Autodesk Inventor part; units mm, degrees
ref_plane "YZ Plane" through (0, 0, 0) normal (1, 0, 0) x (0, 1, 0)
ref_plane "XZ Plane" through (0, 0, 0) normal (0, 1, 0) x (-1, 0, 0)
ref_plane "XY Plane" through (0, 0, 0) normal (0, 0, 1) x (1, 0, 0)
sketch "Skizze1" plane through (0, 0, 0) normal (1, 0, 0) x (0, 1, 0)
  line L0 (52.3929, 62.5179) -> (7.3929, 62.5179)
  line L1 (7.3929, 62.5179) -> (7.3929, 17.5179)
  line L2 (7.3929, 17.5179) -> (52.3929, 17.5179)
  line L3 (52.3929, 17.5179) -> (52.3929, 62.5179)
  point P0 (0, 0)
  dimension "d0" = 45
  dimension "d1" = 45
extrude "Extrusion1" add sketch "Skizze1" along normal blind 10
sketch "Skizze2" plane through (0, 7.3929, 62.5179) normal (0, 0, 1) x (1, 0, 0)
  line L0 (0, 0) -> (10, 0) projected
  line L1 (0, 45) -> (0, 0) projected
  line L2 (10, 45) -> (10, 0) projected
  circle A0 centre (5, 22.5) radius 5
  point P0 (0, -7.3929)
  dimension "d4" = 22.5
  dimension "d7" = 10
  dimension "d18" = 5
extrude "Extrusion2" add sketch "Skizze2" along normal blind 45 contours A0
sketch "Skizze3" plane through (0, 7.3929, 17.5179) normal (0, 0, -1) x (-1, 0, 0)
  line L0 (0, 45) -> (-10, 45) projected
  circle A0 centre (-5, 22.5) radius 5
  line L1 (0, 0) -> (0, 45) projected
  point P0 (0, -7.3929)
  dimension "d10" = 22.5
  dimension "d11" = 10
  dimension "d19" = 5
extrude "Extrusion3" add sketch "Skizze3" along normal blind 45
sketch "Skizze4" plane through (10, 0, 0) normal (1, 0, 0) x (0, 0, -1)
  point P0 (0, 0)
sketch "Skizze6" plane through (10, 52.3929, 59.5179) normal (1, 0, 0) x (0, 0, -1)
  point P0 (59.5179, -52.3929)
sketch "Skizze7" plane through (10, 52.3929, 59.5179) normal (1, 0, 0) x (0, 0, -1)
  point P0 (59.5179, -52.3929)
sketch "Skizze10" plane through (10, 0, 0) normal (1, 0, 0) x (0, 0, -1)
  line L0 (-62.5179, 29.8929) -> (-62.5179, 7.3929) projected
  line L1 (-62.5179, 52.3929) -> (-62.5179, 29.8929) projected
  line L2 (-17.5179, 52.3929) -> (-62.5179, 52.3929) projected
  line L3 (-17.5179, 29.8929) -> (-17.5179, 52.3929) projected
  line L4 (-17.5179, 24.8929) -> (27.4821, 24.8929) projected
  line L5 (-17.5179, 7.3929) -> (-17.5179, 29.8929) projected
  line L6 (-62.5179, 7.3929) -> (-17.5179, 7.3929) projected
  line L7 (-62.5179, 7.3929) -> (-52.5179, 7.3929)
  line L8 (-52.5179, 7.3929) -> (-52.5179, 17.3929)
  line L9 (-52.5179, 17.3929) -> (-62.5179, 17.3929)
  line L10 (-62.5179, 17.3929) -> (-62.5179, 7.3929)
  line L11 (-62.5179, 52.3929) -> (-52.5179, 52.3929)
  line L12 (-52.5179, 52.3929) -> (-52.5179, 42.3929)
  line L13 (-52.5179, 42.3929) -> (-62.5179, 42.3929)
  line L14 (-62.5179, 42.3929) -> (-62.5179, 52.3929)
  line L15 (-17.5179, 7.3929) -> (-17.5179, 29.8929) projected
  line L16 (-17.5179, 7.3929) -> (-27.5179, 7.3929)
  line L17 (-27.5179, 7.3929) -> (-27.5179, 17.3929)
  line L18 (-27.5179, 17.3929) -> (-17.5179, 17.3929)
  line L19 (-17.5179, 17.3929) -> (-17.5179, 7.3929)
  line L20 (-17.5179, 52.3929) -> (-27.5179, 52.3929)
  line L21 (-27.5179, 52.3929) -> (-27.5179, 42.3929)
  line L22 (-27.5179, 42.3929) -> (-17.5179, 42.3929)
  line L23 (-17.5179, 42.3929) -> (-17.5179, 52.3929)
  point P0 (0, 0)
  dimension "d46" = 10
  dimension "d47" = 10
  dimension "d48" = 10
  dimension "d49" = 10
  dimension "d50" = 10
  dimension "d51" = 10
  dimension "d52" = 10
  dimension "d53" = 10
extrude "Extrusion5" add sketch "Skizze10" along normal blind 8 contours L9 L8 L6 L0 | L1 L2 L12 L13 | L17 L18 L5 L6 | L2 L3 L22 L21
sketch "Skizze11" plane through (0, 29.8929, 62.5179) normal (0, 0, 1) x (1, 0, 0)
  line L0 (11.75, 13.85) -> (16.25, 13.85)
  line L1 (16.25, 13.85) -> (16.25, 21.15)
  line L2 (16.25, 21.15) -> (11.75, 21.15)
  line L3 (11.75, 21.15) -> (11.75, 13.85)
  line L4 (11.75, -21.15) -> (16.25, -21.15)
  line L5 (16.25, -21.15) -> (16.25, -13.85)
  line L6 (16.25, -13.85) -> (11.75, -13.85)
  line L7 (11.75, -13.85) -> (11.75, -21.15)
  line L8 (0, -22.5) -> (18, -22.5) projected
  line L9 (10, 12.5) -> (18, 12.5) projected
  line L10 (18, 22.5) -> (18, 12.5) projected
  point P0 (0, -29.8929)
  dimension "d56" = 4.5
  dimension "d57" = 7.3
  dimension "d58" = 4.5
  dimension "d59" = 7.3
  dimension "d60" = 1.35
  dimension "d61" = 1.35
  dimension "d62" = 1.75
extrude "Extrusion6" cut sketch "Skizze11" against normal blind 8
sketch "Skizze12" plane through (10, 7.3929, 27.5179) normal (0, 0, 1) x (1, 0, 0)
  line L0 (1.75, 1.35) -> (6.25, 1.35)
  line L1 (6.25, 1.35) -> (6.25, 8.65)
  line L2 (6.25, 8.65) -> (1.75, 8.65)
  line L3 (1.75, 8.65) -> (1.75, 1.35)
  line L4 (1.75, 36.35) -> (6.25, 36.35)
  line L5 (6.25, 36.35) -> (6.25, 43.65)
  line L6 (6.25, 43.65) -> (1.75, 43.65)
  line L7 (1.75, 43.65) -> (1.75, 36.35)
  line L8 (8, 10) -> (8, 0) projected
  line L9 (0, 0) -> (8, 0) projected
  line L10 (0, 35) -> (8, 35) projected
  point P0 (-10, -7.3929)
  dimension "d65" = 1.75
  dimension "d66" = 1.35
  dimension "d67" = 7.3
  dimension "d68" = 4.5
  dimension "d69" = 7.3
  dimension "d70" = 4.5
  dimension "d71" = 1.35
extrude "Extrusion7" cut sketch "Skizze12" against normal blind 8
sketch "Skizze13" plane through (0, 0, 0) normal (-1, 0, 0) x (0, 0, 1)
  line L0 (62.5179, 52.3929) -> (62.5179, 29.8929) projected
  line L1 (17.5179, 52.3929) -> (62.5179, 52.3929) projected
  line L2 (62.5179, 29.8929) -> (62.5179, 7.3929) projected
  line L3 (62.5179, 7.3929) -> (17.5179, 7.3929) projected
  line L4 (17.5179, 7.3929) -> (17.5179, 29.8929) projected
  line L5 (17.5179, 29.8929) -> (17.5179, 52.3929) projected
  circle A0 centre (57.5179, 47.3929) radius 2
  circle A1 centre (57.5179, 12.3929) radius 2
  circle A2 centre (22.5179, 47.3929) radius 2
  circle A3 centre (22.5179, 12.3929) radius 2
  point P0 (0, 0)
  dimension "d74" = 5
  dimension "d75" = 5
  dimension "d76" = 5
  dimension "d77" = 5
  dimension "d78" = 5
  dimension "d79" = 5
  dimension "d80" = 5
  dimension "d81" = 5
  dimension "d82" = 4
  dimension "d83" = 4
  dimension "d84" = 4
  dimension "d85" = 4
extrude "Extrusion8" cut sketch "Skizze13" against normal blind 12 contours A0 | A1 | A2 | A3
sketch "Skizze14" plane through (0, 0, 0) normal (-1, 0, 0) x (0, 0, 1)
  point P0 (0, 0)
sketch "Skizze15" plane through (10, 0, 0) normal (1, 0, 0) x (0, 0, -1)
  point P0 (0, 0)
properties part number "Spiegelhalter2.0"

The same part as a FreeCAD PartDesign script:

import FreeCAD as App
import Part
import Sketcher

V = App.Vector
Q = App.Units.Quantity

doc = App.newDocument("Part")
params = doc.addObject("Spreadsheet::Sheet", "Params")
for row, (alias, value) in enumerate([
    ("sketch1_width", "45 mm"),
    ("pad1_length", "10 mm"),
    ("sketch2_diameter", "10 mm"),
    ("pad2_length", "45 mm"),
    ("sketch3_diameter", "10 mm"),
    ("pad3_length", "45 mm"),
    ("sketch4_width", "10 mm"),
    ("pad4_length", "8 mm"),
    ("sketch5_width", "4.5 mm"),
    ("sketch5_height", "7.3 mm"),
    ("pocket1_length", "8 mm"),
    ("sketch6_width", "4.5 mm"),
    ("sketch6_height", "7.3 mm"),
    ("pocket2_length", "8 mm"),
    ("sketch7_diameter", "4 mm"),
    ("pocket3_length", "12 mm"),
], start=1):
    params.set(f"A{row}", alias)
    params.set(f"B{row}", "=" + value)
    params.setAlias(f"B{row}", alias)

body = doc.addObject("PartDesign::Body", "Body")

sketch1 = doc.addObject("Sketcher::SketchObject", "Sketch")
body.addObject(sketch1)
sketch1.AttachmentSupport = (doc.YZ_Plane, [""])
sketch1.MapMode = "FlatFace"
sketch1.addGeometry(Part.LineSegment(V(52.3929, 17.5179, 0), V(52.3929, 62.5179, 0)), False)
sketch1.addGeometry(Part.LineSegment(V(52.3929, 62.5179, 0), V(7.3929, 62.5179, 0)), False)
sketch1.addGeometry(Part.LineSegment(V(7.3929, 62.5179, 0), V(7.3929, 17.5179, 0)), False)
sketch1.addGeometry(Part.LineSegment(V(7.3929, 17.5179, 0), V(52.3929, 17.5179, 0)), False)
sketch1.addConstraint(Sketcher.Constraint("Coincident", 0, 2, 1, 1))
sketch1.addConstraint(Sketcher.Constraint("Coincident", 1, 2, 2, 1))
sketch1.addConstraint(Sketcher.Constraint("Coincident", 2, 2, 3, 1))
sketch1.addConstraint(Sketcher.Constraint("Coincident", 3, 2, 0, 1))
sketch1.addConstraint(Sketcher.Constraint("Vertical", 0))
sketch1.addConstraint(Sketcher.Constraint("Horizontal", 1))
sketch1.addConstraint(Sketcher.Constraint("Vertical", 2))
sketch1.addConstraint(Sketcher.Constraint("Horizontal", 3))
sketch1.addConstraint(Sketcher.Constraint("Equal", 3, 0))
sketch1.addConstraint(Sketcher.Constraint("DistanceX", 1, 2, 1, 1, Q("45 mm")))
sketch1.addConstraint(Sketcher.Constraint("DistanceX", -1, 1, 0, 2, Q("52.393 mm")))
sketch1.addConstraint(Sketcher.Constraint("DistanceY", -1, 1, 0, 2, Q("62.518 mm")))
sketch1.setExpression("Constraints[9]", "Params.sketch1_width")
pad1 = doc.addObject("PartDesign::Pad", "Pad")
body.addObject(pad1)
pad1.Profile = sketch1
pad1.setExpression("Length", "Params.pad1_length")

sketch2 = doc.addObject("Sketcher::SketchObject", "Sketch001")
body.addObject(sketch2)
sketch2.AttachmentSupport = (doc.XY_Plane, [""])
sketch2.MapMode = "FlatFace"
sketch2.AttachmentOffset = App.Placement(V(0, 0, 62.5179), App.Rotation())
sketch2.addGeometry(Part.Circle(V(5, 29.8929, 0), V(0, 0, 1), 5), False)
sketch2.addConstraint(Sketcher.Constraint("Diameter", 0, Q("10 mm")))
sketch2.addConstraint(Sketcher.Constraint("DistanceX", -1, 1, 0, 3, Q("5 mm")))
sketch2.addConstraint(Sketcher.Constraint("DistanceY", -1, 1, 0, 3, Q("29.893 mm")))
sketch2.setExpression("Constraints[0]", "Params.sketch2_diameter")
pad2 = doc.addObject("PartDesign::Pad", "Pad001")
body.addObject(pad2)
pad2.Profile = sketch2
pad2.setExpression("Length", "Params.pad2_length")

sketch3 = doc.addObject("Sketcher::SketchObject", "Sketch002")
body.addObject(sketch3)
sketch3.AttachmentSupport = (doc.XY_Plane, [""])
sketch3.MapMode = "FlatFace"
sketch3.AttachmentOffset = App.Placement(V(0, 0, 17.5179), App.Rotation())
sketch3.addGeometry(Part.Circle(V(5, 29.8929, 0), V(0, 0, 1), 5), False)
sketch3.addConstraint(Sketcher.Constraint("Diameter", 0, Q("10 mm")))
sketch3.addConstraint(Sketcher.Constraint("DistanceX", -1, 1, 0, 3, Q("5 mm")))
sketch3.addConstraint(Sketcher.Constraint("DistanceY", -1, 1, 0, 3, Q("29.893 mm")))
sketch3.setExpression("Constraints[0]", "Params.sketch3_diameter")
pad3 = doc.addObject("PartDesign::Pad", "Pad002")
body.addObject(pad3)
pad3.Profile = sketch3
pad3.setExpression("Length", "Params.pad3_length")
pad3.Reversed = True

sketch4 = doc.addObject("Sketcher::SketchObject", "Sketch003")
body.addObject(sketch4)
sketch4.AttachmentSupport = (doc.YZ_Plane, [""])
sketch4.MapMode = "FlatFace"
sketch4.AttachmentOffset = App.Placement(V(0, 0, 10), App.Rotation())
sketch4.addGeometry(Part.LineSegment(V(17.3929, 52.5179, 0), V(17.3929, 62.5179, 0)), False)
sketch4.addGeometry(Part.LineSegment(V(17.3929, 62.5179, 0), V(7.3929, 62.5179, 0)), False)
sketch4.addGeometry(Part.LineSegment(V(7.3929, 62.5179, 0), V(7.3929, 52.5179, 0)), False)
sketch4.addGeometry(Part.LineSegment(V(7.3929, 52.5179, 0), V(17.3929, 52.5179, 0)), False)
sketch4.addGeometry(Part.LineSegment(V(52.3929, 62.5179, 0), V(42.3929, 62.5179, 0)), False)
sketch4.addGeometry(Part.LineSegment(V(42.3929, 62.5179, 0), V(42.3929, 52.5179, 0)), False)
sketch4.addGeometry(Part.LineSegment(V(42.3929, 52.5179, 0), V(52.3929, 52.5179, 0)), False)
sketch4.addGeometry(Part.LineSegment(V(52.3929, 52.5179, 0), V(52.3929, 62.5179, 0)), False)
sketch4.addGeometry(Part.LineSegment(V(17.3929, 27.5179, 0), V(7.3929, 27.5179, 0)), False)
sketch4.addGeometry(Part.LineSegment(V(7.3929, 27.5179, 0), V(7.3929, 17.5179, 0)), False)
sketch4.addGeometry(Part.LineSegment(V(7.3929, 17.5179, 0), V(17.3929, 17.5179, 0)), False)
sketch4.addGeometry(Part.LineSegment(V(17.3929, 17.5179, 0), V(17.3929, 27.5179, 0)), False)
sketch4.addGeometry(Part.LineSegment(V(52.3929, 17.5179, 0), V(52.3929, 27.5179, 0)), False)
sketch4.addGeometry(Part.LineSegment(V(52.3929, 27.5179, 0), V(42.3929, 27.5179, 0)), False)
sketch4.addGeometry(Part.LineSegment(V(42.3929, 27.5179, 0), V(42.3929, 17.5179, 0)), False)
sketch4.addGeometry(Part.LineSegment(V(42.3929, 17.5179, 0), V(52.3929, 17.5179, 0)), False)
sketch4.addConstraint(Sketcher.Constraint("Coincident", 0, 2, 1, 1))
sketch4.addConstraint(Sketcher.Constraint("Coincident", 1, 2, 2, 1))
sketch4.addConstraint(Sketcher.Constraint("Coincident", 2, 2, 3, 1))
sketch4.addConstraint(Sketcher.Constraint("Coincident", 3, 2, 0, 1))
sketch4.addConstraint(Sketcher.Constraint("Coincident", 4, 2, 5, 1))
sketch4.addConstraint(Sketcher.Constraint("Coincident", 5, 2, 6, 1))
sketch4.addConstraint(Sketcher.Constraint("Coincident", 6, 2, 7, 1))
sketch4.addConstraint(Sketcher.Constraint("Coincident", 7, 2, 4, 1))
sketch4.addConstraint(Sketcher.Constraint("Coincident", 8, 2, 9, 1))
sketch4.addConstraint(Sketcher.Constraint("Coincident", 9, 2, 10, 1))
sketch4.addConstraint(Sketcher.Constraint("Coincident", 10, 2, 11, 1))
sketch4.addConstraint(Sketcher.Constraint("Coincident", 11, 2, 8, 1))
sketch4.addConstraint(Sketcher.Constraint("Coincident", 12, 2, 13, 1))
sketch4.addConstraint(Sketcher.Constraint("Coincident", 13, 2, 14, 1))
sketch4.addConstraint(Sketcher.Constraint("Coincident", 14, 2, 15, 1))
sketch4.addConstraint(Sketcher.Constraint("Coincident", 15, 2, 12, 1))
sketch4.addConstraint(Sketcher.Constraint("Vertical", 0))
sketch4.addConstraint(Sketcher.Constraint("Horizontal", 1))
sketch4.addConstraint(Sketcher.Constraint("Vertical", 2))
sketch4.addConstraint(Sketcher.Constraint("Horizontal", 3))
sketch4.addConstraint(Sketcher.Constraint("Horizontal", 4))
sketch4.addConstraint(Sketcher.Constraint("Vertical", 5))
sketch4.addConstraint(Sketcher.Constraint("Horizontal", 6))
sketch4.addConstraint(Sketcher.Constraint("Vertical", 7))
sketch4.addConstraint(Sketcher.Constraint("Horizontal", 8))
sketch4.addConstraint(Sketcher.Constraint("Vertical", 9))
sketch4.addConstraint(Sketcher.Constraint("Horizontal", 10))
sketch4.addConstraint(Sketcher.Constraint("Vertical", 11))
sketch4.addConstraint(Sketcher.Constraint("Vertical", 12))
sketch4.addConstraint(Sketcher.Constraint("Horizontal", 13))
sketch4.addConstraint(Sketcher.Constraint("Vertical", 14))
sketch4.addConstraint(Sketcher.Constraint("Horizontal", 15))
sketch4.addConstraint(Sketcher.Constraint("Horizontal", 1, 2, 4, 2))
sketch4.addConstraint(Sketcher.Constraint("Horizontal", 3, 2, 5, 2))
sketch4.addConstraint(Sketcher.Constraint("Horizontal", 11, 2, 12, 2))
sketch4.addConstraint(Sketcher.Constraint("Horizontal", 10, 2, 14, 2))
sketch4.addConstraint(Sketcher.Constraint("Vertical", 2, 2, 8, 2))
sketch4.addConstraint(Sketcher.Constraint("Vertical", 3, 2, 10, 2))
sketch4.addConstraint(Sketcher.Constraint("Vertical", 7, 2, 12, 2))
sketch4.addConstraint(Sketcher.Constraint("Vertical", 5, 2, 13, 2))
sketch4.addConstraint(Sketcher.Constraint("Equal", 3, 4))
sketch4.addConstraint(Sketcher.Constraint("Equal", 15, 0))
sketch4.addConstraint(Sketcher.Constraint("Equal", 7, 9))
sketch4.addConstraint(Sketcher.Constraint("DistanceX", 1, 2, 1, 1, Q("10 mm")))
sketch4.addConstraint(Sketcher.Constraint("DistanceX", 0, 2, 4, 2, Q("25 mm")))
sketch4.addConstraint(Sketcher.Constraint("DistanceY", 8, 2, 2, 2, Q("25 mm")))
sketch4.addConstraint(Sketcher.Constraint("DistanceX", -1, 1, 0, 2, Q("17.393 mm")))
sketch4.addConstraint(Sketcher.Constraint("DistanceY", -1, 1, 0, 2, Q("62.518 mm")))
sketch4.setExpression("Constraints[43]", "Params.sketch4_width")
pad4 = doc.addObject("PartDesign::Pad", "Pad003")
body.addObject(pad4)
pad4.Profile = sketch4
pad4.setExpression("Length", "Params.pad4_length")

sketch5 = doc.addObject("Sketcher::SketchObject", "Sketch004")
body.addObject(sketch5)
sketch5.AttachmentSupport = (doc.XY_Plane, [""])
sketch5.MapMode = "FlatFace"
sketch5.AttachmentOffset = App.Placement(V(0, 0, 62.5179), App.Rotation())
sketch5.addGeometry(Part.LineSegment(V(11.75, 51.0429, 0), V(11.75, 43.7429, 0)), False)
sketch5.addGeometry(Part.LineSegment(V(11.75, 43.7429, 0), V(16.25, 43.7429, 0)), False)
sketch5.addGeometry(Part.LineSegment(V(16.25, 43.7429, 0), V(16.25, 51.0429, 0)), False)
sketch5.addGeometry(Part.LineSegment(V(16.25, 51.0429, 0), V(11.75, 51.0429, 0)), False)
sketch5.addGeometry(Part.LineSegment(V(11.75, 16.0429, 0), V(11.75, 8.7429, 0)), False)
sketch5.addGeometry(Part.LineSegment(V(11.75, 8.7429, 0), V(16.25, 8.7429, 0)), False)
sketch5.addGeometry(Part.LineSegment(V(16.25, 8.7429, 0), V(16.25, 16.0429, 0)), False)
sketch5.addGeometry(Part.LineSegment(V(16.25, 16.0429, 0), V(11.75, 16.0429, 0)), False)
sketch5.addConstraint(Sketcher.Constraint("Coincident", 0, 2, 1, 1))
sketch5.addConstraint(Sketcher.Constraint("Coincident", 1, 2, 2, 1))
sketch5.addConstraint(Sketcher.Constraint("Coincident", 2, 2, 3, 1))
sketch5.addConstraint(Sketcher.Constraint("Coincident", 3, 2, 0, 1))
sketch5.addConstraint(Sketcher.Constraint("Coincident", 4, 2, 5, 1))
sketch5.addConstraint(Sketcher.Constraint("Coincident", 5, 2, 6, 1))
sketch5.addConstraint(Sketcher.Constraint("Coincident", 6, 2, 7, 1))
sketch5.addConstraint(Sketcher.Constraint("Coincident", 7, 2, 4, 1))
sketch5.addConstraint(Sketcher.Constraint("Vertical", 0))
sketch5.addConstraint(Sketcher.Constraint("Horizontal", 1))
sketch5.addConstraint(Sketcher.Constraint("Vertical", 2))
sketch5.addConstraint(Sketcher.Constraint("Horizontal", 3))
sketch5.addConstraint(Sketcher.Constraint("Vertical", 4))
sketch5.addConstraint(Sketcher.Constraint("Horizontal", 5))
sketch5.addConstraint(Sketcher.Constraint("Vertical", 6))
sketch5.addConstraint(Sketcher.Constraint("Horizontal", 7))
sketch5.addConstraint(Sketcher.Constraint("Vertical", 3, 2, 4, 2))
sketch5.addConstraint(Sketcher.Constraint("Vertical", 2, 2, 5, 2))
sketch5.addConstraint(Sketcher.Constraint("Equal", 2, 4))
sketch5.addConstraint(Sketcher.Constraint("DistanceX", 1, 1, 1, 2, Q("4.5 mm")))
sketch5.addConstraint(Sketcher.Constraint("DistanceY", 0, 2, 0, 1, Q("7.3 mm")))
sketch5.addConstraint(Sketcher.Constraint("DistanceY", 4, 2, 0, 2, Q("35 mm")))
sketch5.addConstraint(Sketcher.Constraint("DistanceX", -1, 1, 0, 2, Q("11.75 mm")))
sketch5.addConstraint(Sketcher.Constraint("DistanceY", -1, 1, 0, 2, Q("43.743 mm")))
sketch5.setExpression("Constraints[19]", "Params.sketch5_width")
sketch5.setExpression("Constraints[20]", "Params.sketch5_height")
pocket1 = doc.addObject("PartDesign::Pocket", "Pocket")
body.addObject(pocket1)
pocket1.Profile = sketch5
pocket1.setExpression("Length", "Params.pocket1_length")

sketch6 = doc.addObject("Sketcher::SketchObject", "Sketch005")
body.addObject(sketch6)
sketch6.AttachmentSupport = (doc.XY_Plane, [""])
sketch6.MapMode = "FlatFace"
sketch6.AttachmentOffset = App.Placement(V(0, 0, 27.5179), App.Rotation())
sketch6.addGeometry(Part.LineSegment(V(11.75, 16.0429, 0), V(11.75, 8.7429, 0)), False)
sketch6.addGeometry(Part.LineSegment(V(11.75, 8.7429, 0), V(16.25, 8.7429, 0)), False)
sketch6.addGeometry(Part.LineSegment(V(16.25, 8.7429, 0), V(16.25, 16.0429, 0)), False)
sketch6.addGeometry(Part.LineSegment(V(16.25, 16.0429, 0), V(11.75, 16.0429, 0)), False)
sketch6.addGeometry(Part.LineSegment(V(11.75, 51.0429, 0), V(11.75, 43.7429, 0)), False)
sketch6.addGeometry(Part.LineSegment(V(11.75, 43.7429, 0), V(16.25, 43.7429, 0)), False)
sketch6.addGeometry(Part.LineSegment(V(16.25, 43.7429, 0), V(16.25, 51.0429, 0)), False)
sketch6.addGeometry(Part.LineSegment(V(16.25, 51.0429, 0), V(11.75, 51.0429, 0)), False)
sketch6.addConstraint(Sketcher.Constraint("Coincident", 0, 2, 1, 1))
sketch6.addConstraint(Sketcher.Constraint("Coincident", 1, 2, 2, 1))
sketch6.addConstraint(Sketcher.Constraint("Coincident", 2, 2, 3, 1))
sketch6.addConstraint(Sketcher.Constraint("Coincident", 3, 2, 0, 1))
sketch6.addConstraint(Sketcher.Constraint("Coincident", 4, 2, 5, 1))
sketch6.addConstraint(Sketcher.Constraint("Coincident", 5, 2, 6, 1))
sketch6.addConstraint(Sketcher.Constraint("Coincident", 6, 2, 7, 1))
sketch6.addConstraint(Sketcher.Constraint("Coincident", 7, 2, 4, 1))
sketch6.addConstraint(Sketcher.Constraint("Vertical", 0))
sketch6.addConstraint(Sketcher.Constraint("Horizontal", 1))
sketch6.addConstraint(Sketcher.Constraint("Vertical", 2))
sketch6.addConstraint(Sketcher.Constraint("Horizontal", 3))
sketch6.addConstraint(Sketcher.Constraint("Vertical", 4))
sketch6.addConstraint(Sketcher.Constraint("Horizontal", 5))
sketch6.addConstraint(Sketcher.Constraint("Vertical", 6))
sketch6.addConstraint(Sketcher.Constraint("Horizontal", 7))
sketch6.addConstraint(Sketcher.Constraint("Vertical", 3, 2, 4, 2))
sketch6.addConstraint(Sketcher.Constraint("Vertical", 2, 2, 5, 2))
sketch6.addConstraint(Sketcher.Constraint("Equal", 2, 4))
sketch6.addConstraint(Sketcher.Constraint("DistanceX", 1, 1, 1, 2, Q("4.5 mm")))
sketch6.addConstraint(Sketcher.Constraint("DistanceY", 0, 2, 0, 1, Q("7.3 mm")))
sketch6.addConstraint(Sketcher.Constraint("DistanceY", 0, 2, 4, 2, Q("35 mm")))
sketch6.addConstraint(Sketcher.Constraint("DistanceX", -1, 1, 0, 2, Q("11.75 mm")))
sketch6.addConstraint(Sketcher.Constraint("DistanceY", -1, 1, 0, 2, Q("8.743 mm")))
sketch6.setExpression("Constraints[19]", "Params.sketch6_width")
sketch6.setExpression("Constraints[20]", "Params.sketch6_height")
pocket2 = doc.addObject("PartDesign::Pocket", "Pocket001")
body.addObject(pocket2)
pocket2.Profile = sketch6
pocket2.setExpression("Length", "Params.pocket2_length")

sketch7 = doc.addObject("Sketcher::SketchObject", "Sketch006")
body.addObject(sketch7)
sketch7.AttachmentSupport = (doc.YZ_Plane, [""])
sketch7.MapMode = "FlatFace"
sketch7.addGeometry(Part.Circle(V(47.3929, 57.5179, 0), V(0, 0, 1), 2), False)
sketch7.addGeometry(Part.Circle(V(12.3929, 57.5179, 0), V(0, 0, 1), 2), False)
sketch7.addGeometry(Part.Circle(V(47.3929, 22.5179, 0), V(0, 0, 1), 2), False)
sketch7.addGeometry(Part.Circle(V(12.3929, 22.5179, 0), V(0, 0, 1), 2), False)
sketch7.addConstraint(Sketcher.Constraint("Equal", 0, 1))
sketch7.addConstraint(Sketcher.Constraint("Equal", 1, 2))
sketch7.addConstraint(Sketcher.Constraint("Equal", 2, 3))
sketch7.addConstraint(Sketcher.Constraint("Horizontal", 0, 3, 1, 3))
sketch7.addConstraint(Sketcher.Constraint("Horizontal", 2, 3, 3, 3))
sketch7.addConstraint(Sketcher.Constraint("Vertical", 0, 3, 2, 3))
sketch7.addConstraint(Sketcher.Constraint("Vertical", 1, 3, 3, 3))
sketch7.addConstraint(Sketcher.Constraint("Diameter", 0, Q("4 mm")))
sketch7.addConstraint(Sketcher.Constraint("DistanceX", 1, 3, 0, 3, Q("35 mm")))
sketch7.addConstraint(Sketcher.Constraint("DistanceY", 2, 3, 0, 3, Q("35 mm")))
sketch7.addConstraint(Sketcher.Constraint("DistanceX", -1, 1, 0, 3, Q("47.393 mm")))
sketch7.addConstraint(Sketcher.Constraint("DistanceY", -1, 1, 0, 3, Q("57.518 mm")))
sketch7.setExpression("Constraints[7]", "Params.sketch7_diameter")
pocket3 = doc.addObject("PartDesign::Pocket", "Pocket002")
body.addObject(pocket3)
pocket3.Profile = sketch7
pocket3.setExpression("Length", "Params.pocket3_length")
pocket3.Reversed = True

doc.recompute()
